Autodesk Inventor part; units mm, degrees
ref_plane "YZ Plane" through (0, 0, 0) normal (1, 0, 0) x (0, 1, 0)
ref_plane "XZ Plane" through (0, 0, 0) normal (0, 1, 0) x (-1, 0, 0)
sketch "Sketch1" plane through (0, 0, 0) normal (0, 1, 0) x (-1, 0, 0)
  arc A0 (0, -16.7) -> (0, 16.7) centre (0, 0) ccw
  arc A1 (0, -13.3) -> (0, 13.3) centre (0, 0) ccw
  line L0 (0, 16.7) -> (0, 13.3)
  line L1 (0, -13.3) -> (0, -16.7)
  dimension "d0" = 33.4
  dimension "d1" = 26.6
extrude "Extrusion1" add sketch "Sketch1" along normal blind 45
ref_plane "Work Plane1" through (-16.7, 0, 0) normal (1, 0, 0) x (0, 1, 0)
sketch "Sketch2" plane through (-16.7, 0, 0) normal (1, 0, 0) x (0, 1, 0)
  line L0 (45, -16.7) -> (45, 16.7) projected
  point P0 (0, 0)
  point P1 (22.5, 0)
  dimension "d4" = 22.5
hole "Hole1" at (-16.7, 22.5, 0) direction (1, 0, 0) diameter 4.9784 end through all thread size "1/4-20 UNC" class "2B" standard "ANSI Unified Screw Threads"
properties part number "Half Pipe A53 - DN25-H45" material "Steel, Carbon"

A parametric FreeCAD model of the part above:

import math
import FreeCAD as App
import Part
import Sketcher

V = App.Vector

doc = App.newDocument("Part")
body = doc.addObject("PartDesign::Body", "Body")

sketch1 = doc.addObject("Sketcher::SketchObject", "Sketch")
body.addObject(sketch1)
sketch1.AttachmentSupport = (doc.XZ_Plane, [""])
sketch1.MapMode = "FlatFace"
sketch1.addGeometry([
    Part.LineSegment(V(0, -13.3, 0), V(0, -16.7, 0)),
    Part.ArcOfCircle(Part.Circle(V(0, 0, 0), V(0, 0, 1), 16.7), math.radians(90), math.radians(270)),
    Part.LineSegment(V(0, 16.7, 0), V(0, 13.3, 0)),
    Part.ArcOfCircle(Part.Circle(V(0, 0, 0), V(0, 0, 1), 13.3), math.radians(90), math.radians(270)),
], False)
sketch1.addConstraint([
    Sketcher.Constraint("Coincident", 0, 2, 1, 2),
    Sketcher.Constraint("Coincident", 1, 1, 2, 1),
    Sketcher.Constraint("Coincident", 2, 2, 3, 1),
    Sketcher.Constraint("Coincident", 3, 2, 0, 1),
    Sketcher.Constraint("Vertical", 0),
    Sketcher.Constraint("Vertical", 2),
    Sketcher.Constraint("Coincident", 1, 3, -1, 1),
    Sketcher.Constraint("Coincident", 3, 3, -1, 1),
    Sketcher.Constraint("PointOnObject", 0, 2, -2),
    Sketcher.Constraint("PointOnObject", 1, 1, -2),
    Sketcher.Constraint("Radius", 1, 16.7),
    Sketcher.Constraint("Radius", 3, 13.3),
])
pad1 = doc.addObject("PartDesign::Pad", "Pad")
body.addObject(pad1)
pad1.Profile = sketch1
pad1.Length = 45
pad1.Reversed = True

sketch2 = doc.addObject("Sketcher::SketchObject", "Sketch001")
body.addObject(sketch2)
sketch2.AttachmentSupport = (doc.YZ_Plane, [""])
sketch2.MapMode = "FlatFace"
sketch2.AttachmentOffset = App.Placement(V(0, 0, -16.7), App.Rotation())
sketch2.addGeometry(Part.Circle(V(22.5, 0, 0), V(0, 0, 1), 2.4892), False)
sketch2.addConstraint([
    Sketcher.Constraint("PointOnObject", 0, 3, -1),
    Sketcher.Constraint("Diameter", 0, 4.9784),
    Sketcher.Constraint("DistanceX", -1, 1, 0, 3, 22.5),
])
doc.recompute()
hole = doc.addObject("PartDesign::Hole", "Hole")
body.addObject(hole)
hole.Profile = sketch2
hole.ThreadType = "None"
hole.Diameter = 4.9784
hole.DepthType = "ThroughAll"
hole.Reversed = True

doc.recompute()
